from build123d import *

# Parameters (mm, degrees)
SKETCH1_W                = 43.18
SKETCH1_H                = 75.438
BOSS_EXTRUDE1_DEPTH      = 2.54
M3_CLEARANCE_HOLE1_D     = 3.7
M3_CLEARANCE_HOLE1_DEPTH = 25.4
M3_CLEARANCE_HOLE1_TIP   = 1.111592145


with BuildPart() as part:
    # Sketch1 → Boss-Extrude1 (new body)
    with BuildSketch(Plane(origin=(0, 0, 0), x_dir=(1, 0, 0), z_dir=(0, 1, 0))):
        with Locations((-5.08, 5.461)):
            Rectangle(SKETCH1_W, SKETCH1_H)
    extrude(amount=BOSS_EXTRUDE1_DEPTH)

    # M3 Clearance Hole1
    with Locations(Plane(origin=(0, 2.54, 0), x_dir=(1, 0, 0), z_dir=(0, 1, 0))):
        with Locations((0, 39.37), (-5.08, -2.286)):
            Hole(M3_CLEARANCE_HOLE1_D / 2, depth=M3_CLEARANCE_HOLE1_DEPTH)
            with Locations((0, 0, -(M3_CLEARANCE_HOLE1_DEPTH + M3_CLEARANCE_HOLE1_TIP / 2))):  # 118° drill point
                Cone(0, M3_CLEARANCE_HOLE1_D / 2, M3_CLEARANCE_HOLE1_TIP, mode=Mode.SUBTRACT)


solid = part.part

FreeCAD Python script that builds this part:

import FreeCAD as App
import Part
import Sketcher

V = App.Vector
Q = App.Units.Quantity

doc = App.newDocument("Part")
body = doc.addObject("PartDesign::Body", "Body")

sketch1 = body.newObject("Sketcher::SketchObject", "Sketch")
sketch1.AttachmentSupport = (doc.getObject("XZ_Plane"), [""])
sketch1.MapMode = "FlatFace"
sketch1.addGeometry([
    Part.LineSegment(V(-27, -43, 0), V(-27, 32, 0)),
    Part.LineSegment(V(-27, 32, 0), V(17, 32, 0)),
    Part.LineSegment(V(17, 32, 0), V(17, -43, 0)),
    Part.LineSegment(V(17, -43, 0), V(-27, -43, 0)),
], False)
sketch1.addConstraint([
    Sketcher.Constraint("Coincident", 0, 2, 1, 1),
    Sketcher.Constraint("Coincident", 1, 2, 2, 1),
    Sketcher.Constraint("Coincident", 2, 2, 3, 1),
    Sketcher.Constraint("Coincident", 3, 2, 0, 1),
    Sketcher.Constraint("Vertical", 0),
    Sketcher.Constraint("Horizontal", 1),
    Sketcher.Constraint("Vertical", 2),
    Sketcher.Constraint("Horizontal", 3),
    Sketcher.Constraint("DistanceX", 1, 1, 1, 2, Q("1.7 in")),
    Sketcher.Constraint("DistanceY", 0, 1, 0, 2, Q("2.97 in")),
    Sketcher.Constraint("DistanceY", 2, 2, -1, 1, Q("1.7 in")),
    Sketcher.Constraint("DistanceX", 0, 2, -1, 1, Q("1.05 in")),
])
pad1 = body.newObject("PartDesign::Pad", "Pad")
pad1.Profile = sketch1
pad1.Length = Q("0.1 in")
pad1.Reversed = True

sketch2 = body.newObject("Sketcher::SketchObject", "Sketch001")
sketch2.AttachmentSupport = (doc.getObject("XZ_Plane"), [""])
sketch2.MapMode = "FlatFace"
sketch2.AttachmentOffset = App.Placement(V(0, 0, -0.1 * 25.4), App.Rotation())
sketch2.addGeometry([
    Part.Circle(V(0, -39.4, 0), V(0, 0, 1), 1.9),
    Part.Circle(V(-5.1, 2.3, 0), V(0, 0, 1), 1.9),
], False)
sketch2.addConstraint([
    Sketcher.Constraint("Equal", 0, 1),
    Sketcher.Constraint("PointOnObject", 0, 3, -2),
    Sketcher.Constraint("DistanceX", 1, 3, -1, 1, Q("0.2 in")),
    Sketcher.Constraint("Diameter", 0, 3.7),
    Sketcher.Constraint("DistanceY", 0, 3, -1, 1, Q("1.55 in")),
    Sketcher.Constraint("DistanceY", -1, 1, 1, 3, Q("0.09 in")),
])
doc.recompute()
hole = body.newObject("PartDesign::Hole", "Hole")
hole.Profile = sketch2
hole.ThreadType = "None"
hole.Diameter = 3.7
hole.DepthType = "Dimension"
hole.Depth = Q("1 in")
hole.DrillPoint = "Angled"
hole.DrillPointAngle = 118
hole.Reversed = True

doc.recompute()
